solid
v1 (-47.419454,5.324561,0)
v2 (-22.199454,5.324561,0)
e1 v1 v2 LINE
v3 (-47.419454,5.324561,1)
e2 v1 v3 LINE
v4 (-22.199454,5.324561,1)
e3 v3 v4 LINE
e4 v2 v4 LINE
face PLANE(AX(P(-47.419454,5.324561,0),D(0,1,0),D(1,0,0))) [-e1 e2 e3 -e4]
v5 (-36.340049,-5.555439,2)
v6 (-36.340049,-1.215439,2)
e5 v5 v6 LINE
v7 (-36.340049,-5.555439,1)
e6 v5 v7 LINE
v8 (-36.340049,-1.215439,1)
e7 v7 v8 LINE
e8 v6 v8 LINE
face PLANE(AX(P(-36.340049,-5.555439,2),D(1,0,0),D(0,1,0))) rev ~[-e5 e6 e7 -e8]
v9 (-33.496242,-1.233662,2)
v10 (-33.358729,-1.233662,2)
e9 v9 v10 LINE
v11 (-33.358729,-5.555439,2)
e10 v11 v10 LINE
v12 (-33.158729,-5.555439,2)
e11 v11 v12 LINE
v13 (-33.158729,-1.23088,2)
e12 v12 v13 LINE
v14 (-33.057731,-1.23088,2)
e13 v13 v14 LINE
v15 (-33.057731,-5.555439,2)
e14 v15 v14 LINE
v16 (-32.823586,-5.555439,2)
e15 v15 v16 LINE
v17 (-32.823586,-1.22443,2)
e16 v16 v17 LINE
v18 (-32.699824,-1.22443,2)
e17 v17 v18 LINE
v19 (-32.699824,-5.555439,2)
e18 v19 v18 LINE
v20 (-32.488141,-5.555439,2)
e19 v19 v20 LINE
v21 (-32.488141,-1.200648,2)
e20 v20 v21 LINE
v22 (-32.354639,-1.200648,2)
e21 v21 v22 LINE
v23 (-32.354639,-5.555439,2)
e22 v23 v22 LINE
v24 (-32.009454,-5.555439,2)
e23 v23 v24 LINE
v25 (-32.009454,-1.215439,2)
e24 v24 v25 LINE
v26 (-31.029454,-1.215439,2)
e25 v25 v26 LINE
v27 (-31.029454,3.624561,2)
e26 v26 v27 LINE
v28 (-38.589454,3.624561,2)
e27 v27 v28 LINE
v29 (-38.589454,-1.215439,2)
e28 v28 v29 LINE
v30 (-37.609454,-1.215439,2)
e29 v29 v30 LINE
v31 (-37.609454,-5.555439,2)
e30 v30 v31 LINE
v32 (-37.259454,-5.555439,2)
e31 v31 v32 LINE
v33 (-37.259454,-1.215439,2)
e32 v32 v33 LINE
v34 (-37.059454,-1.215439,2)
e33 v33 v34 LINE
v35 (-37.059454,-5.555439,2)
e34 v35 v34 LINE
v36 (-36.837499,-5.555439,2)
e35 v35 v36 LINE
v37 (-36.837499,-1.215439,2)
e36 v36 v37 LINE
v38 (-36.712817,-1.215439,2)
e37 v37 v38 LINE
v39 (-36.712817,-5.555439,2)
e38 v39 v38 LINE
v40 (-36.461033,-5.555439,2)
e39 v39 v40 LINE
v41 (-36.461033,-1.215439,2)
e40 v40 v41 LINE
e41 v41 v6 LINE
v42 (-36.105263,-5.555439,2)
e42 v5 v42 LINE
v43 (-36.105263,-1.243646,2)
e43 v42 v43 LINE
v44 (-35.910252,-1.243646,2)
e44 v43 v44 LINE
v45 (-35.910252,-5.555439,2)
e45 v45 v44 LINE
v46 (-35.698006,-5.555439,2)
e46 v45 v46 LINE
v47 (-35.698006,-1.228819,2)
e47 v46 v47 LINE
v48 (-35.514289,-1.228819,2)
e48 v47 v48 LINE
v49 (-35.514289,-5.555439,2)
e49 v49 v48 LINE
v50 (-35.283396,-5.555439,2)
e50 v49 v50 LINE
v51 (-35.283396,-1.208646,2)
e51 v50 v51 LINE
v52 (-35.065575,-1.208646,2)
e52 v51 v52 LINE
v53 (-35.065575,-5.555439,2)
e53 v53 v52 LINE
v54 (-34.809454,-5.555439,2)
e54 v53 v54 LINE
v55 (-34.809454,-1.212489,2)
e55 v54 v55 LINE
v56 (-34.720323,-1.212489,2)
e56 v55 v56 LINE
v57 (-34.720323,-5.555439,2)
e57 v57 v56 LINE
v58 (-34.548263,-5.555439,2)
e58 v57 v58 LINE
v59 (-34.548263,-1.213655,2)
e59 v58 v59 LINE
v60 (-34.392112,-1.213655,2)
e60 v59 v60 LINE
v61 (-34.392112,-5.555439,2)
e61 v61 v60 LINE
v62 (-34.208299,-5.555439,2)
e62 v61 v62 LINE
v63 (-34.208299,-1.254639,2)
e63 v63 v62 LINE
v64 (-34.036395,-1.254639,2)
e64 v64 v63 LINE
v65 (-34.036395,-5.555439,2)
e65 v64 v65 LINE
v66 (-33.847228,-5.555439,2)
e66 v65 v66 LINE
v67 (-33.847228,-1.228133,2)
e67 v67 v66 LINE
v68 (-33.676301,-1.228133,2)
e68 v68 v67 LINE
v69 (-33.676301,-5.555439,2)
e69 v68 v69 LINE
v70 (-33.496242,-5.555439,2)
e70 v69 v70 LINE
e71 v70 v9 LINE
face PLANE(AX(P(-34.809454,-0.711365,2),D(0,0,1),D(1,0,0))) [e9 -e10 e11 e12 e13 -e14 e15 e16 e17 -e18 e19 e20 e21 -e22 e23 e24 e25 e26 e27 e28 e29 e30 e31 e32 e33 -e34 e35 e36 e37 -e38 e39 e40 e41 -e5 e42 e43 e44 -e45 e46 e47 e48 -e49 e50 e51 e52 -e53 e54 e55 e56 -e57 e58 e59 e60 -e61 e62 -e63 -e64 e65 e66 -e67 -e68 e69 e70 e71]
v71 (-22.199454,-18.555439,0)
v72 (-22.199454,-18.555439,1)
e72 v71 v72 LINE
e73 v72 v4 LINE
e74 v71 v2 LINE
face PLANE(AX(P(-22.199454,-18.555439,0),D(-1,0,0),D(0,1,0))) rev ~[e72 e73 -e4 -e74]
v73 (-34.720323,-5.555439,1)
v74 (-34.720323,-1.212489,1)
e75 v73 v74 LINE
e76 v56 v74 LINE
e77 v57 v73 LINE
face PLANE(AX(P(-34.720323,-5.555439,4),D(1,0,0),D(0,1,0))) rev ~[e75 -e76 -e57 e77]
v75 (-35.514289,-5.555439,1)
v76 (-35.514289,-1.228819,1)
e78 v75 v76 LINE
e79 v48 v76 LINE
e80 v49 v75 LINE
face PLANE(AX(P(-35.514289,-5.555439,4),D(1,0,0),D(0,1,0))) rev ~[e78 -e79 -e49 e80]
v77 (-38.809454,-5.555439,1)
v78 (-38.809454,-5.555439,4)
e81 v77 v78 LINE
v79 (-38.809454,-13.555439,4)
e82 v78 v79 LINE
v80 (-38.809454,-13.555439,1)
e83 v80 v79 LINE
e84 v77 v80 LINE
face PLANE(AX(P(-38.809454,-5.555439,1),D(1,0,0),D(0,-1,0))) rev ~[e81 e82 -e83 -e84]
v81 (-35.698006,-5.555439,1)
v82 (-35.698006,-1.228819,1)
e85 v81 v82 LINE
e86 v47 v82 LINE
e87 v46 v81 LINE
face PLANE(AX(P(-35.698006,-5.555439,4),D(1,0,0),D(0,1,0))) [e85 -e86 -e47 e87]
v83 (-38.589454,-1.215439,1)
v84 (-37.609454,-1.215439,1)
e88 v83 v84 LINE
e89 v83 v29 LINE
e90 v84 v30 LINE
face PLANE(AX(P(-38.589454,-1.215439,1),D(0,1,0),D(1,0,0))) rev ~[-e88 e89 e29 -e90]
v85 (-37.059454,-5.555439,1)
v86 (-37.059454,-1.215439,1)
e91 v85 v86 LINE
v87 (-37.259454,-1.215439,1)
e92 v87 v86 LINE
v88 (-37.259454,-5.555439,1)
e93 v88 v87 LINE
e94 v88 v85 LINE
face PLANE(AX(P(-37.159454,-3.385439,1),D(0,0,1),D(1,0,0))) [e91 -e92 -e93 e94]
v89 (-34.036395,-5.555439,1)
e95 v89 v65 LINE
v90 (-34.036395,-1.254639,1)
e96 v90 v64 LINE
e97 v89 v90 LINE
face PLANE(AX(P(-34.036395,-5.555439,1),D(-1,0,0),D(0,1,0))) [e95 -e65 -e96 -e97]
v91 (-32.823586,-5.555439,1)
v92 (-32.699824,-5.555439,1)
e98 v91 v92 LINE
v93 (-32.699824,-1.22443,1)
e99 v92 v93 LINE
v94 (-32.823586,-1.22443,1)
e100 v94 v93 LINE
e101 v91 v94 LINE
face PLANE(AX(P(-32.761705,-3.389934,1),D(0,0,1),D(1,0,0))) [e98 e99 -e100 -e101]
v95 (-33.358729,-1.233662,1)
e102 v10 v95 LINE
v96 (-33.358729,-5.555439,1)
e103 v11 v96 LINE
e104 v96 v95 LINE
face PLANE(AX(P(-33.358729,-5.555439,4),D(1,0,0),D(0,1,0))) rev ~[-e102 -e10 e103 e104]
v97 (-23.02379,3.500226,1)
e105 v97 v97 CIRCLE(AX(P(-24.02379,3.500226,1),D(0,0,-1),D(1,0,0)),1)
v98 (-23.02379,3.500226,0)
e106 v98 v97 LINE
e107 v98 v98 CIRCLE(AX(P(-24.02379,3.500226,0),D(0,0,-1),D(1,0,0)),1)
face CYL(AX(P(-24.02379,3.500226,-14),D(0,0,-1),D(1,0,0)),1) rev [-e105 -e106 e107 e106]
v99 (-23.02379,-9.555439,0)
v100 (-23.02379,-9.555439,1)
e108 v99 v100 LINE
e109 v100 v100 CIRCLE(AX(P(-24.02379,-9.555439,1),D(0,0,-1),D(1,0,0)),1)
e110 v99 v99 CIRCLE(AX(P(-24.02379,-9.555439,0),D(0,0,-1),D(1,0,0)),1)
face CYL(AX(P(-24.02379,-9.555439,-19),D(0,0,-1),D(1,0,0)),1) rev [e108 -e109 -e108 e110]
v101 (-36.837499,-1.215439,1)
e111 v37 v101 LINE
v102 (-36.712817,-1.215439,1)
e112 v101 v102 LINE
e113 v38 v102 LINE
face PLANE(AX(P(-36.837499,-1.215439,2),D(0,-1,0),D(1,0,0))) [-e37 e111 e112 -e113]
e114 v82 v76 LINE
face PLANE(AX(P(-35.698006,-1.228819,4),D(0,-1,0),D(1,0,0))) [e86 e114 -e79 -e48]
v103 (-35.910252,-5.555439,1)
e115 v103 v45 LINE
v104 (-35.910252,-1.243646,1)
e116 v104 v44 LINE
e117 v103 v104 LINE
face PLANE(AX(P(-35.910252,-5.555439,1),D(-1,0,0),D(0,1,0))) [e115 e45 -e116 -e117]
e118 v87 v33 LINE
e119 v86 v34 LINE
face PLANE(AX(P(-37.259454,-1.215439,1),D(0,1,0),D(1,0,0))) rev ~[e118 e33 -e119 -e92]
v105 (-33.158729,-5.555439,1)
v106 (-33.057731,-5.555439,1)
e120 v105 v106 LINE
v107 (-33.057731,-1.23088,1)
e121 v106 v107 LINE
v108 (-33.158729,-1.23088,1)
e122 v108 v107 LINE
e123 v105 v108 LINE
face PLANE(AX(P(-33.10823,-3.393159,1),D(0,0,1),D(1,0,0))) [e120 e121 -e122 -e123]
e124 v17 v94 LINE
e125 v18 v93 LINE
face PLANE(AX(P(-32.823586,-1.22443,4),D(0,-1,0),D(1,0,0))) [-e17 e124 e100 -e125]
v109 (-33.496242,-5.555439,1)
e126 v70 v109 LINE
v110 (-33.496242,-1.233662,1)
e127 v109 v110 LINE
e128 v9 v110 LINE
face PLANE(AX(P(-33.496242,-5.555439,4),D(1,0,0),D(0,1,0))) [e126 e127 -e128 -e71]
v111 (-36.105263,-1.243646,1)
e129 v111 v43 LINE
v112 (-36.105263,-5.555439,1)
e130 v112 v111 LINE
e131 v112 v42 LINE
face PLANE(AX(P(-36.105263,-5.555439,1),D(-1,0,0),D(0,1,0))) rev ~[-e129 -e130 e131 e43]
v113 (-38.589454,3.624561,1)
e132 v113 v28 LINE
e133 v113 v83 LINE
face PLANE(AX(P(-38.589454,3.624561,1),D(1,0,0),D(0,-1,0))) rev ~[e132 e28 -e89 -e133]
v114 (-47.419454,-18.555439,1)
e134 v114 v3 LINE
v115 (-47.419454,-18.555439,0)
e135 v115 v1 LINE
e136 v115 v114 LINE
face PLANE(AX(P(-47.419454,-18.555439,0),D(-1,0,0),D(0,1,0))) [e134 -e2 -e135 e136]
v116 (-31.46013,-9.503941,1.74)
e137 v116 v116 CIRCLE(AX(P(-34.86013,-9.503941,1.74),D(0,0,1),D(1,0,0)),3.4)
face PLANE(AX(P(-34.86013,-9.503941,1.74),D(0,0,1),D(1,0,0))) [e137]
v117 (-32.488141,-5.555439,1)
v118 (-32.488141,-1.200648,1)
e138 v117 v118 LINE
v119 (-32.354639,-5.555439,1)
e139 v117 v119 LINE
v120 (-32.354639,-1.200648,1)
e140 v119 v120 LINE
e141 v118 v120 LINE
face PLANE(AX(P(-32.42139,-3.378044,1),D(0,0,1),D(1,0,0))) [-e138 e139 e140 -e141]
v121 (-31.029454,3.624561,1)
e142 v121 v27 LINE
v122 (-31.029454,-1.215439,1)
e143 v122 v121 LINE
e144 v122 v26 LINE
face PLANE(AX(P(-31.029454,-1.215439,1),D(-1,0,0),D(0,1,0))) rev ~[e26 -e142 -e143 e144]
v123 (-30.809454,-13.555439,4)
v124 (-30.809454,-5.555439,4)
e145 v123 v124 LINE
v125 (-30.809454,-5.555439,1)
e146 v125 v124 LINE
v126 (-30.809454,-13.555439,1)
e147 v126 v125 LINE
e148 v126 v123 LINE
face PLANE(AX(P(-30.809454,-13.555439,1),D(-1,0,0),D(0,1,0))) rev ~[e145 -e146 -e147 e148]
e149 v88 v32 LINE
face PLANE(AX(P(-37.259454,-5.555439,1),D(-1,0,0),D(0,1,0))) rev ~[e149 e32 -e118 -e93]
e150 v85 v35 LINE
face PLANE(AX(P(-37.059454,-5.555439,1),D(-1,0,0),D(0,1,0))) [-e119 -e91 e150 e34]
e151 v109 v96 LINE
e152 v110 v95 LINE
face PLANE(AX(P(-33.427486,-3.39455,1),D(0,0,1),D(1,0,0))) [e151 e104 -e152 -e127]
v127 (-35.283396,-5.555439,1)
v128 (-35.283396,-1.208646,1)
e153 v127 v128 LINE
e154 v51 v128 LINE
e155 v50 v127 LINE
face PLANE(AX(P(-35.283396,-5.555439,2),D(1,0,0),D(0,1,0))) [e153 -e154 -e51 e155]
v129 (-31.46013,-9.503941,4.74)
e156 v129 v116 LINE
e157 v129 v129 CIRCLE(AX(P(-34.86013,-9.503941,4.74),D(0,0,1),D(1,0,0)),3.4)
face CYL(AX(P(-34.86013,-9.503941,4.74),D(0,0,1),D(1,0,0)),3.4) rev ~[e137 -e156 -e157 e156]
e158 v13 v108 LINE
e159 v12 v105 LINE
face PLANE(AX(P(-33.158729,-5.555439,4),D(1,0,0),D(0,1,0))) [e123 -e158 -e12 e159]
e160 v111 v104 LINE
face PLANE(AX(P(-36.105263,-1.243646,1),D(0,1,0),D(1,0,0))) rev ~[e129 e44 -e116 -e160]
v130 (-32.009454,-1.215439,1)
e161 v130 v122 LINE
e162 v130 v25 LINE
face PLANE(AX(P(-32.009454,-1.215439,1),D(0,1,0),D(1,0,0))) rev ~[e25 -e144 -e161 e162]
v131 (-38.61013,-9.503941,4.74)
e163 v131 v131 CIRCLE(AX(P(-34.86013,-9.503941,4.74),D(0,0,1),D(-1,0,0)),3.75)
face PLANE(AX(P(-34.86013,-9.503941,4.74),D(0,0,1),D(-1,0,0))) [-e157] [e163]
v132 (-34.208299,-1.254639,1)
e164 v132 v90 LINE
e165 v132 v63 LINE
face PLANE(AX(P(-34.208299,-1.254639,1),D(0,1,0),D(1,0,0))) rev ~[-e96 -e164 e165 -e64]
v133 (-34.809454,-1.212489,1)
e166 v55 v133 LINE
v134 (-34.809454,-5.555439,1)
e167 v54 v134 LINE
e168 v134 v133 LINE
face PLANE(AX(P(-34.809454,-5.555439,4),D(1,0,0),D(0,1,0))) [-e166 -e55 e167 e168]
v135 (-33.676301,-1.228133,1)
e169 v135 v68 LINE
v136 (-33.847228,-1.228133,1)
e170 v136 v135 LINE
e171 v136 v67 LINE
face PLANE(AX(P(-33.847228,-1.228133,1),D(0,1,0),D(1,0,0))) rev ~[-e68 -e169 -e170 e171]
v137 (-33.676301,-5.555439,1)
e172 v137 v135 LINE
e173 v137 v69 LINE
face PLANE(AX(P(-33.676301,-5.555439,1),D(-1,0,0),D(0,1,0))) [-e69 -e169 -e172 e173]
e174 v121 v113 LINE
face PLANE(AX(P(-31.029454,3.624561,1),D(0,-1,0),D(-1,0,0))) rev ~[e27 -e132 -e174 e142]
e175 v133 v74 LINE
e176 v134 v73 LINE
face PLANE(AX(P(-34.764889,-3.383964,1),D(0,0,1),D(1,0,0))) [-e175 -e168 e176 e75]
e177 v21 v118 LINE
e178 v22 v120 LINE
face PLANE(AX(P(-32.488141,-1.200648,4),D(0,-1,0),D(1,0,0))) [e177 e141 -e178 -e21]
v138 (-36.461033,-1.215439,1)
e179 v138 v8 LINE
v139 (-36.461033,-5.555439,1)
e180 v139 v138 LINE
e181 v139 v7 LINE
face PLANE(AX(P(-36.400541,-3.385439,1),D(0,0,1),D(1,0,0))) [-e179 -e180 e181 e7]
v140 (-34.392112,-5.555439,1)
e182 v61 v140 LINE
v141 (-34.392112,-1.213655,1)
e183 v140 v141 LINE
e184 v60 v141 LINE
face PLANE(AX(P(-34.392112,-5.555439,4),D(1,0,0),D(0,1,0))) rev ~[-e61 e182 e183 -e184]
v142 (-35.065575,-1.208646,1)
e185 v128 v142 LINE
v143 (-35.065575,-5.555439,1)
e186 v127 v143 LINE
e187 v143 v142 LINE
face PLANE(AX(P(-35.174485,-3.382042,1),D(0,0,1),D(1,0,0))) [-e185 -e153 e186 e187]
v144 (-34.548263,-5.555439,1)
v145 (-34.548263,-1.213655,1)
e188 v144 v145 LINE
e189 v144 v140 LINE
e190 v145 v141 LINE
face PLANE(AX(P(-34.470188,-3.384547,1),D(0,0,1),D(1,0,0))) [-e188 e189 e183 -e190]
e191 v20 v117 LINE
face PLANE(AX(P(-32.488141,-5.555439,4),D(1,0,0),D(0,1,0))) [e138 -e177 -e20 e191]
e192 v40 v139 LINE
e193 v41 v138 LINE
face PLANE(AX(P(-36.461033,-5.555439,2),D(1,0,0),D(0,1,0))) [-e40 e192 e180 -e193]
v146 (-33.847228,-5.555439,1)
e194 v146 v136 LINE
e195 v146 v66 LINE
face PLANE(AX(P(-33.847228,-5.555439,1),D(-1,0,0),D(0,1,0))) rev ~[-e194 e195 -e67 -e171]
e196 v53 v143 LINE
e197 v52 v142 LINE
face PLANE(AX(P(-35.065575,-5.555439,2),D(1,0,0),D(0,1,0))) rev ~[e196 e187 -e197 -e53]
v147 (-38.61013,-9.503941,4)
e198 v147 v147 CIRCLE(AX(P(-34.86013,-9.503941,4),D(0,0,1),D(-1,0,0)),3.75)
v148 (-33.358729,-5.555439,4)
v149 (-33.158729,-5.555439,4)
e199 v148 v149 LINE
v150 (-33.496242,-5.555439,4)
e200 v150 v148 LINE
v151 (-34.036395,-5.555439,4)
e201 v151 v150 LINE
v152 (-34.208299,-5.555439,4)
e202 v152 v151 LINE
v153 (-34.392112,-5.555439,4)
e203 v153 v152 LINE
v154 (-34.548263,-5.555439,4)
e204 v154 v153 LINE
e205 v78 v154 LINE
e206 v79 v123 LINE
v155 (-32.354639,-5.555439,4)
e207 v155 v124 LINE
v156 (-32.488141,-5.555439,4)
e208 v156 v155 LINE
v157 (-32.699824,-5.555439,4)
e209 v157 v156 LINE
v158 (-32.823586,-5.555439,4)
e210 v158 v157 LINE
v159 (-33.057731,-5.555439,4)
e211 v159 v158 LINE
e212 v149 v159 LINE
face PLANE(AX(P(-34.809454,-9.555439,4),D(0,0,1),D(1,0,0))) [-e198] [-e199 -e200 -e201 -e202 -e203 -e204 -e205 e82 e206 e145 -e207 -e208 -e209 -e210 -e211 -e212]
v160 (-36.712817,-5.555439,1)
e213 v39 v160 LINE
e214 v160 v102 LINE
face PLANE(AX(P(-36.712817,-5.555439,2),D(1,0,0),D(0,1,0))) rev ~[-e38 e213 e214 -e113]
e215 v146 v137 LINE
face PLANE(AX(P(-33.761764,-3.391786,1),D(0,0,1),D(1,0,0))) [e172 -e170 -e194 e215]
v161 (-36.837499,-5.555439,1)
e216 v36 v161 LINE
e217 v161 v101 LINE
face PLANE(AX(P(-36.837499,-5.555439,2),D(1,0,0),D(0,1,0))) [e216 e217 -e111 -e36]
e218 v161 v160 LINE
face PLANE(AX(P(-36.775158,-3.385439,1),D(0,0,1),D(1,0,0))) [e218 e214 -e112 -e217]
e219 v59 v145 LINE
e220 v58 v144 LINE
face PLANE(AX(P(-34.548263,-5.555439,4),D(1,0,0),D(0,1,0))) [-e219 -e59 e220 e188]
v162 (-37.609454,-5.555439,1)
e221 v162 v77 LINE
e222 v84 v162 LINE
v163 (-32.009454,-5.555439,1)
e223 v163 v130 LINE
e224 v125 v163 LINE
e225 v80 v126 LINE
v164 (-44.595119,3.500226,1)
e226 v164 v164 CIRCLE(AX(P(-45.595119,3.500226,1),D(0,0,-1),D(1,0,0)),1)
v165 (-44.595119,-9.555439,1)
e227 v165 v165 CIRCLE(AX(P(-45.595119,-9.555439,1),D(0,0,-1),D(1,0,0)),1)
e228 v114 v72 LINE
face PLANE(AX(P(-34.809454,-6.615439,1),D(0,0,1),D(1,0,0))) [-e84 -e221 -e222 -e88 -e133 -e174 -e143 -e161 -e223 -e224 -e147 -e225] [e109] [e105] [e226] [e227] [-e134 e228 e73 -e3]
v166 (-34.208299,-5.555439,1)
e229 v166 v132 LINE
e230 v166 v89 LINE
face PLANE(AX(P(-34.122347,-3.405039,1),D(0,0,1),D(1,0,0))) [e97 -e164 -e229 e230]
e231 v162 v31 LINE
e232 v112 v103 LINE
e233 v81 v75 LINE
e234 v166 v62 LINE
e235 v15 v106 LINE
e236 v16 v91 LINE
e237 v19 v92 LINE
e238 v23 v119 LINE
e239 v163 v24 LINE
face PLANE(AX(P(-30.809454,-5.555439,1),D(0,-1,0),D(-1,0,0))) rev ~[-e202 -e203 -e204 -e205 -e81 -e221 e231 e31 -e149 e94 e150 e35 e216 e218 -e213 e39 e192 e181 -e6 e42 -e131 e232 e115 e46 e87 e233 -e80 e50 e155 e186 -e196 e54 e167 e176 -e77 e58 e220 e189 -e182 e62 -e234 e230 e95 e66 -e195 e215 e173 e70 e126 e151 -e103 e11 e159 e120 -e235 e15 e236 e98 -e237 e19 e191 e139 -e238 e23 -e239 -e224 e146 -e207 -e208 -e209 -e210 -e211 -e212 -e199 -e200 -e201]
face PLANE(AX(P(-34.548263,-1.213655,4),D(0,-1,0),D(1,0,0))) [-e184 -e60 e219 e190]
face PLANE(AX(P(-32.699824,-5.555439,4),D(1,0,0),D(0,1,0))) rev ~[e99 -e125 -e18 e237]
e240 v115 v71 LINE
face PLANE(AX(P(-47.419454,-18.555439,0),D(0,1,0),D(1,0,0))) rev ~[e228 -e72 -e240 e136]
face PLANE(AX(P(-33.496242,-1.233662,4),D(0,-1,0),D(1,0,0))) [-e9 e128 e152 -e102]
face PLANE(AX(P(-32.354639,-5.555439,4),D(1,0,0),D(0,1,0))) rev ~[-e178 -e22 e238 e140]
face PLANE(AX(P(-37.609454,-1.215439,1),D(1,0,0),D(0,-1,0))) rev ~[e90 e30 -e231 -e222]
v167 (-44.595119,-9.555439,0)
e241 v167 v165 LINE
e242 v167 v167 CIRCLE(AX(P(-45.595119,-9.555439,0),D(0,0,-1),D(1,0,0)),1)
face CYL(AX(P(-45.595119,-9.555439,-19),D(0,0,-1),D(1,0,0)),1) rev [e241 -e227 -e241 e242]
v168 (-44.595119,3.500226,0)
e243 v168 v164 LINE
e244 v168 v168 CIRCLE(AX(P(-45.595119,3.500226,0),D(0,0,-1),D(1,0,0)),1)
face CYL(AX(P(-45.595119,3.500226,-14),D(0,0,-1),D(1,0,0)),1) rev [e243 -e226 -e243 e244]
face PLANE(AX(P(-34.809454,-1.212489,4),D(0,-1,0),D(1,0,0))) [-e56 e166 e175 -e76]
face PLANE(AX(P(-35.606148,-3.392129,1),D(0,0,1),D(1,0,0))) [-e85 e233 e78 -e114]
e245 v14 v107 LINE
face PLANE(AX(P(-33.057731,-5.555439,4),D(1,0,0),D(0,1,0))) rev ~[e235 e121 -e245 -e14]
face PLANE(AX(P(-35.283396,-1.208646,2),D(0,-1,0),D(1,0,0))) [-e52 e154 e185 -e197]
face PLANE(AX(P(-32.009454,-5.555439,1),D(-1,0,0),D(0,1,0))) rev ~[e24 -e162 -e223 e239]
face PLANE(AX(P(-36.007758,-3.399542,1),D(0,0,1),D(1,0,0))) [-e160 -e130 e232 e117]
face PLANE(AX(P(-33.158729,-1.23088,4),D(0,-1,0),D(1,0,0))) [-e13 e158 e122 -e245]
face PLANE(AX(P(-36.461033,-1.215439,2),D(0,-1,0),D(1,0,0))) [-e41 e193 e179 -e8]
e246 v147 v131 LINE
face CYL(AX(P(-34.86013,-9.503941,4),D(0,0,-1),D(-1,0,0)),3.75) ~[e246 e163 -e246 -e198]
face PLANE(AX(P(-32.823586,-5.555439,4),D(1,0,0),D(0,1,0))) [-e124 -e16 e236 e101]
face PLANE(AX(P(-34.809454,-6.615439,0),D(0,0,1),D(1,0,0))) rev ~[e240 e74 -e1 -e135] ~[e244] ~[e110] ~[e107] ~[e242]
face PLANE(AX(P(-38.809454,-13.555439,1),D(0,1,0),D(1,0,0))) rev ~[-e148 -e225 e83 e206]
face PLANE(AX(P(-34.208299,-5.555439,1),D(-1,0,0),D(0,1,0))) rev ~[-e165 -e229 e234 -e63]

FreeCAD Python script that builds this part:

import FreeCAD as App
import Part
import Sketcher

V = App.Vector


def add_polygon(sketch, points):
    """Adds a closed chain of lines whose ends are joined by coincident constraints."""
    first, n = sketch.GeometryCount, len(points)
    for a, b in zip(points, points[1:] + points[:1]):
        sketch.addGeometry(Part.LineSegment(App.Vector(*a, 0), App.Vector(*b, 0)), False)
    for i in range(n):
        sketch.addConstraint(Sketcher.Constraint("Coincident", first + i, 2, first + (i + 1) % n, 1))

doc = App.newDocument("Part")
body = doc.addObject("PartDesign::Body", "Body")

# Sketch on XY plane
sketch1 = doc.addObject("Sketcher::SketchObject", "Sketch")
body.addObject(sketch1)
sketch1.AttachmentSupport = (doc.XY_Plane, [""])
sketch1.MapMode = "FlatFace"
add_polygon(sketch1, [(-47, 5), (-47, -19), (-22, -19), (-22, 5)])  # lines 0-3
sketch1.addConstraint([
    Sketcher.Constraint("Vertical", 0),
    Sketcher.Constraint("Horizontal", 1),
    Sketcher.Constraint("Vertical", 2),
    Sketcher.Constraint("Horizontal", 3),
    Sketcher.Constraint("DistanceX", 1, 1, 1, 2, 25.22),
    Sketcher.Constraint("DistanceY", 0, 2, 0, 1, 23.88),
    Sketcher.Constraint("DistanceY", 0, 2, -1, 1, 18.555439),
    Sketcher.Constraint("DistanceX", 0, 2, -1, 1, 47.419454),
])
pad1 = doc.addObject("PartDesign::Pad", "Pad")
body.addObject(pad1)
pad1.Profile = sketch1
pad1.Length = 1

# Sketch on XY plane
sketch2 = doc.addObject("Sketcher::SketchObject", "Sketch001")
body.addObject(sketch2)
sketch2.AttachmentSupport = (doc.XY_Plane, [""])
sketch2.MapMode = "FlatFace"
sketch2.AttachmentOffset = App.Placement(V(0, 0, 1), App.Rotation())
sketch2.addGeometry([
    Part.Circle(V(-24, 3.5, 0), V(0, 0, 1), 1),
    Part.Circle(V(-45.6, 3.5, 0), V(0, 0, 1), 1),
], False)
sketch2.addConstraint([
    Sketcher.Constraint("Equal", 0, 1),
    Sketcher.Constraint("Horizontal", 0, 3, 1, 3),
    Sketcher.Constraint("Diameter", 0, 2.0),
    Sketcher.Constraint("DistanceX", 0, 3, -1, 1, 24.02379),
    Sketcher.Constraint("DistanceX", 1, 3, -1, 1, 45.595119),
    Sketcher.Constraint("DistanceY", -1, 1, 0, 3, 3.500226),
])
pocket1 = doc.addObject("PartDesign::Pocket", "Pocket")
body.addObject(pocket1)
pocket1.Profile = sketch2
pocket1.Type = "ThroughAll"
pocket1.Midplane = True

# Sketch on XY plane
sketch3 = doc.addObject("Sketcher::SketchObject", "Sketch002")
body.addObject(sketch3)
sketch3.AttachmentSupport = (doc.XY_Plane, [""])
sketch3.MapMode = "FlatFace"
sketch3.AttachmentOffset = App.Placement(V(0, 0, 1), App.Rotation())
add_polygon(sketch3, [(-31, -14), (-31, -6), (-39, -6), (-39, -14)])  # lines 0-3
sketch3.addConstraint([
    Sketcher.Constraint("Vertical", 0),
    Sketcher.Constraint("Horizontal", 1),
    Sketcher.Constraint("Vertical", 2),
    Sketcher.Constraint("Horizontal", 3),
    Sketcher.Constraint("Equal", 3, 0),
    Sketcher.Constraint("DistanceX", 1, 2, 1, 1, 8.0),
    Sketcher.Constraint("DistanceY", 0, 2, -1, 1, 5.555439),
    Sketcher.Constraint("DistanceX", 0, 2, -1, 1, 30.809454),
])
pad2 = doc.addObject("PartDesign::Pad", "Pad001")
body.addObject(pad2)
pad2.Profile = sketch3
pad2.Length = 3

# Sketch on XY plane
sketch4 = doc.addObject("Sketcher::SketchObject", "Sketch003")
body.addObject(sketch4)
sketch4.AttachmentSupport = (doc.XY_Plane, [""])
sketch4.MapMode = "FlatFace"
sketch4.AttachmentOffset = App.Placement(V(0, 0, 4), App.Rotation())
sketch4.addGeometry(Part.Circle(V(-34.9, -9.5, 0), V(0, 0, 1), 3.8), False)
sketch4.addConstraint([
    Sketcher.Constraint("Diameter", 0, 7.5),
    Sketcher.Constraint("DistanceX", 0, 3, -1, 1, 34.86013),
    Sketcher.Constraint("DistanceY", 0, 3, -1, 1, 9.503941),
])
pad3 = doc.addObject("PartDesign::Pad", "Pad002")
body.addObject(pad3)
pad3.Profile = sketch4
pad3.Length = 0.74

# Sketch on XY plane
sketch5 = doc.addObject("Sketcher::SketchObject", "Sketch004")
body.addObject(sketch5)
sketch5.AttachmentSupport = (doc.XY_Plane, [""])
sketch5.MapMode = "FlatFace"
sketch5.AttachmentOffset = App.Placement(V(0, 0, 4.74), App.Rotation())
sketch5.addGeometry(Part.Circle(V(-34.9, -9.5, 0), V(0, 0, 1), 3.4), False)
sketch5.addConstraint([
    Sketcher.Constraint("Diameter", 0, 6.8),
    Sketcher.Constraint("DistanceX", 0, 3, -1, 1, 34.86013),
    Sketcher.Constraint("DistanceY", 0, 3, -1, 1, 9.503941),
])
pocket2 = doc.addObject("PartDesign::Pocket", "Pocket001")
body.addObject(pocket2)
pocket2.Profile = sketch5
pocket2.Length = 3

# Sketch on XY plane
sketch6 = doc.addObject("Sketcher::SketchObject", "Sketch005")
body.addObject(sketch6)
sketch6.AttachmentSupport = (doc.XY_Plane, [""])
sketch6.MapMode = "FlatFace"
sketch6.AttachmentOffset = App.Placement(V(0, 0, 1), App.Rotation())
sketch6.addGeometry([
    Part.Circle(V(-24, -9.6, 0), V(0, 0, 1), 1),
    Part.Circle(V(-45.6, -9.6, 0), V(0, 0, 1), 1),
], False)
sketch6.addConstraint([
    Sketcher.Constraint("Equal", 0, 1),
    Sketcher.Constraint("Horizontal", 0, 3, 1, 3),
    Sketcher.Constraint("Diameter", 0, 2.0),
    Sketcher.Constraint("DistanceX", 0, 3, -1, 1, 24.02379),
    Sketcher.Constraint("DistanceY", 0, 3, -1, 1, 9.555439),
    Sketcher.Constraint("DistanceX", 1, 3, -1, 1, 45.595119),
])
pocket3 = doc.addObject("PartDesign::Pocket", "Pocket002")
body.addObject(pocket3)
pocket3.Profile = sketch6
pocket3.Type = "ThroughAll"
pocket3.Midplane = True

# Sketch on XY plane
sketch7 = doc.addObject("Sketcher::SketchObject", "Sketch006")
body.addObject(sketch7)
sketch7.AttachmentSupport = (doc.XY_Plane, [""])
sketch7.MapMode = "FlatFace"
sketch7.AttachmentOffset = App.Placement(V(0, 0, 1), App.Rotation())
add_polygon(sketch7, [(-38.6, 3.6), (-38.6, -1.2), (-37.6, -1.2), (-37.6, -5.6), (-32, -5.6), (-32, -1.2), (-31, -1.2), (-31, 3.6)])  # lines 0-7
sketch7.addConstraint([
    Sketcher.Constraint("Vertical", 0),
    Sketcher.Constraint("Horizontal", 1),
    Sketcher.Constraint("Vertical", 2),
    Sketcher.Constraint("Horizontal", 3),
    Sketcher.Constraint("Vertical", 4),
    Sketcher.Constraint("Horizontal", 5),
    Sketcher.Constraint("Vertical", 6),
    Sketcher.Constraint("Horizontal", 7),
    Sketcher.Constraint("Horizontal", 1, 2, 4, 2),
    Sketcher.Constraint("Equal", 1, 5),
    Sketcher.Constraint("DistanceX", 3, 1, 3, 2, 5.6),
    Sketcher.Constraint("DistanceX", 1, 1, 1, 2, 0.98),
    Sketcher.Constraint("DistanceY", 0, 2, 0, 1, 4.84),
    Sketcher.Constraint("DistanceY", 2, 2, 2, 1, 4.34),
    Sketcher.Constraint("DistanceY", 0, 2, -1, 1, 1.215439),
    Sketcher.Constraint("DistanceX", 0, 2, -1, 1, 38.589454),
])
pad4 = doc.addObject("PartDesign::Pad", "Pad003")
body.addObject(pad4)
pad4.Profile = sketch7
pad4.Length = 1

# Sketch on XY plane
sketch8 = doc.addObject("Sketcher::SketchObject", "Sketch007")
body.addObject(sketch8)
sketch8.AttachmentSupport = (doc.XY_Plane, [""])
sketch8.MapMode = "FlatFace"
sketch8.AttachmentOffset = App.Placement(V(0, 0, 1), App.Rotation())
add_polygon(sketch8, [(-37.26, -1.22), (-37.26, -5.56), (-37.06, -5.56), (-37.06, -1.22)])  # lines 0-3
sketch8.addConstraint([
    Sketcher.Constraint("Vertical", 0),
    Sketcher.Constraint("Horizontal", 1),
    Sketcher.Constraint("Vertical", 2),
    Sketcher.Constraint("Horizontal", 3),
    Sketcher.Constraint("DistanceX", 1, 1, 1, 2, 0.2),
    Sketcher.Constraint("DistanceY", 0, 2, 0, 1, 4.34),
    Sketcher.Constraint("DistanceY", 0, 2, -1, 1, 5.555439),
    Sketcher.Constraint("DistanceX", 0, 2, -1, 1, 37.259454),
])
pocket4 = doc.addObject("PartDesign::Pocket", "Pocket003")
body.addObject(pocket4)
pocket4.Profile = sketch8
pocket4.Length = 1
pocket4.Reversed = True

# Sketch on XY plane
sketch9 = doc.addObject("Sketcher::SketchObject", "Sketch008")
body.addObject(sketch9)
sketch9.AttachmentSupport = (doc.XY_Plane, [""])
sketch9.MapMode = "FlatFace"
sketch9.AttachmentOffset = App.Placement(V(0, 0, 2), App.Rotation())
add_polygon(sketch9, [(-36.84, -1.22), (-36.84, -5.56), (-36.71, -5.56), (-36.71, -1.22)])  # lines 0-3
sketch9.addConstraint([
    Sketcher.Constraint("Vertical", 0),
    Sketcher.Constraint("Horizontal", 1),
    Sketcher.Constraint("Vertical", 2),
    Sketcher.Constraint("Horizontal", 3),
    Sketcher.Constraint("DistanceY", 0, 2, 0, 1, 4.34),
    Sketcher.Constraint("DistanceX", 1, 1, 1, 2, 0.124682),
    Sketcher.Constraint("DistanceX", 0, 2, -1, 1, 36.837499),
    Sketcher.Constraint("DistanceY", 0, 2, -1, 1, 5.555439),
])
pocket5 = doc.addObject("PartDesign::Pocket", "Pocket004")
body.addObject(pocket5)
pocket5.Profile = sketch9
pocket5.Length = 1

# Sketch on XY plane
sketch10 = doc.addObject("Sketcher::SketchObject", "Sketch009")
body.addObject(sketch10)
sketch10.AttachmentSupport = (doc.XY_Plane, [""])
sketch10.MapMode = "FlatFace"
sketch10.AttachmentOffset = App.Placement(V(0, 0, 2), App.Rotation())
add_polygon(sketch10, [(-36.46, -1.22), (-36.46, -5.56), (-36.34, -5.56), (-36.34, -1.22)])  # lines 0-3
sketch10.addConstraint([
    Sketcher.Constraint("Vertical", 0),
    Sketcher.Constraint("Horizontal", 1),
    Sketcher.Constraint("Vertical", 2),
    Sketcher.Constraint("Horizontal", 3),
    Sketcher.Constraint("DistanceY", 0, 2, 0, 1, 4.34),
    Sketcher.Constraint("DistanceX", 1, 1, 1, 2, 0.120984),
    Sketcher.Constraint("DistanceY", 0, 2, -1, 1, 5.555439),
    Sketcher.Constraint("DistanceX", 1, 2, -1, 1, 36.340049),
])
pocket6 = doc.addObject("PartDesign::Pocket", "Pocket005")
body.addObject(pocket6)
pocket6.Profile = sketch10
pocket6.Length = 1

# Sketch on XY plane
sketch11 = doc.addObject("Sketcher::SketchObject", "Sketch010")
body.addObject(sketch11)
sketch11.AttachmentSupport = (doc.XY_Plane, [""])
sketch11.MapMode = "FlatFace"
sketch11.AttachmentOffset = App.Placement(V(0, 0, 1), App.Rotation())
add_polygon(sketch11, [(-36.11, -1.24), (-36.11, -5.56), (-35.91, -5.56), (-35.91, -1.24)])  # lines 0-3
sketch11.addConstraint([
    Sketcher.Constraint("Vertical", 0),
    Sketcher.Constraint("Horizontal", 1),
    Sketcher.Constraint("Vertical", 2),
    Sketcher.Constraint("Horizontal", 3),
    Sketcher.Constraint("DistanceX", 1, 1, 1, 2, 0.195011),
    Sketcher.Constraint("DistanceY", 0, 2, 0, 1, 4.311793),
    Sketcher.Constraint("DistanceY", 0, 2, -1, 1, 5.555439),
    Sketcher.Constraint("DistanceX", 0, 2, -1, 1, 36.105263),
])
pocket7 = doc.addObject("PartDesign::Pocket", "Pocket006")
body.addObject(pocket7)
pocket7.Profile = sketch11
pocket7.Length = 1
pocket7.Reversed = True

# Sketch on XY plane
sketch12 = doc.addObject("Sketcher::SketchObject", "Sketch011")
body.addObject(sketch12)
sketch12.AttachmentSupport = (doc.XY_Plane, [""])
sketch12.MapMode = "FlatFace"
sketch12.AttachmentOffset = App.Placement(V(0, 0, 4), App.Rotation())
add_polygon(sketch12, [(-35.7, -1.23), (-35.7, -5.56), (-35.51, -5.56), (-35.51, -1.23)])  # lines 0-3
sketch12.addConstraint([
    Sketcher.Constraint("Vertical", 0),
    Sketcher.Constraint("Horizontal", 1),
    Sketcher.Constraint("Vertical", 2),
    Sketcher.Constraint("Horizontal", 3),
    Sketcher.Constraint("DistanceY", 0, 2, 0, 1, 4.32662),
    Sketcher.Constraint("DistanceX", 1, 1, 1, 2, 0.183718),
    Sketcher.Constraint("DistanceY", 0, 2, -1, 1, 5.555439),
    Sketcher.Constraint("DistanceX", 1, 2, -1, 1, 35.514289),
])
pocket8 = doc.addObject("PartDesign::Pocket", "Pocket007")
body.addObject(pocket8)
pocket8.Profile = sketch12
pocket8.Length = 3

# Sketch on XY plane
sketch13 = doc.addObject("Sketcher::SketchObject", "Sketch012")
body.addObject(sketch13)
sketch13.AttachmentSupport = (doc.XY_Plane, [""])
sketch13.MapMode = "FlatFace"
sketch13.AttachmentOffset = App.Placement(V(0, 0, 2), App.Rotation())
add_polygon(sketch13, [(-35.28, -1.21), (-35.28, -5.56), (-35.07, -5.56), (-35.07, -1.21)])  # lines 0-3
sketch13.addConstraint([
    Sketcher.Constraint("Vertical", 0),
    Sketcher.Constraint("Horizontal", 1),
    Sketcher.Constraint("Vertical", 2),
    Sketcher.Constraint("Horizontal", 3),
    Sketcher.Constraint("DistanceX", 1, 1, 1, 2, 0.217821),
    Sketcher.Constraint("DistanceY", 0, 2, 0, 1, 4.346793),
    Sketcher.Constraint("DistanceY", 0, 2, -1, 1, 5.555439),
    Sketcher.Constraint("DistanceX", 0, 2, -1, 1, 35.283396),
])
pocket9 = doc.addObject("PartDesign::Pocket", "Pocket008")
body.addObject(pocket9)
pocket9.Profile = sketch13
pocket9.Length = 1

# Sketch on XY plane
sketch14 = doc.addObject("Sketcher::SketchObject", "Sketch013")
body.addObject(sketch14)
sketch14.AttachmentSupport = (doc.XY_Plane, [""])
sketch14.MapMode = "FlatFace"
sketch14.AttachmentOffset = App.Placement(V(0, 0, 4), App.Rotation())
add_polygon(sketch14, [(-34.81, -1.21), (-34.81, -5.56), (-34.72, -5.56), (-34.72, -1.21)])  # lines 0-3
sketch14.addConstraint([
    Sketcher.Constraint("Vertical", 0),
    Sketcher.Constraint("Horizontal", 1),
    Sketcher.Constraint("Vertical", 2),
    Sketcher.Constraint("Horizontal", 3),
    Sketcher.Constraint("DistanceX", 1, 1, 1, 2, 0.089132),
    Sketcher.Constraint("DistanceY", 0, 2, 0, 1, 4.34295),
    Sketcher.Constraint("DistanceY", 0, 2, -1, 1, 5.555439),
    Sketcher.Constraint("DistanceX", 0, 2, -1, 1, 34.809454),
])
pocket10 = doc.addObject("PartDesign::Pocket", "Pocket009")
body.addObject(pocket10)
pocket10.Profile = sketch14
pocket10.Length = 3

# Sketch on XY plane
sketch15 = doc.addObject("Sketcher::SketchObject", "Sketch014")
body.addObject(sketch15)
sketch15.AttachmentSupport = (doc.XY_Plane, [""])
sketch15.MapMode = "FlatFace"
sketch15.AttachmentOffset = App.Placement(V(0, 0, 4), App.Rotation())
add_polygon(sketch15, [(-34.55, -1.21), (-34.55, -5.56), (-34.39, -5.56), (-34.39, -1.21)])  # lines 0-3
sketch15.addConstraint([
    Sketcher.Constraint("Vertical", 0),
    Sketcher.Constraint("Horizontal", 1),
    Sketcher.Constraint("Vertical", 2),
    Sketcher.Constraint("Horizontal", 3),
    Sketcher.Constraint("DistanceX", 1, 1, 1, 2, 0.156151),
    Sketcher.Constraint("DistanceY", 0, 2, 0, 1, 4.341784),
    Sketcher.Constraint("DistanceY", 0, 2, -1, 1, 5.555439),
    Sketcher.Constraint("DistanceX", 1, 2, -1, 1, 34.392112),
])
pocket11 = doc.addObject("PartDesign::Pocket", "Pocket010")
body.addObject(pocket11)
pocket11.Profile = sketch15
pocket11.Length = 3

# Sketch on XY plane
sketch16 = doc.addObject("Sketcher::SketchObject", "Sketch015")
body.addObject(sketch16)
sketch16.AttachmentSupport = (doc.XY_Plane, [""])
sketch16.MapMode = "FlatFace"
sketch16.AttachmentOffset = App.Placement(V(0, 0, 1), App.Rotation())
add_polygon(sketch16, [(-34.21, -1.25), (-34.21, -5.56), (-34.04, -5.56), (-34.04, -1.25)])  # lines 0-3
sketch16.addConstraint([
    Sketcher.Constraint("Vertical", 0),
    Sketcher.Constraint("Horizontal", 1),
    Sketcher.Constraint("Vertical", 2),
    Sketcher.Constraint("Horizontal", 3),
    Sketcher.Constraint("DistanceY", 0, 2, 0, 1, 4.3008),
    Sketcher.Constraint("DistanceX", 0, 2, -1, 1, 34.208299),
    Sketcher.Constraint("DistanceX", 1, 1, 1, 2, 0.171903),
    Sketcher.Constraint("DistanceY", 0, 2, -1, 1, 5.555439),
])
pocket12 = doc.addObject("PartDesign::Pocket", "Pocket011")
body.addObject(pocket12)
pocket12.Profile = sketch16
pocket12.Length = 3
pocket12.Reversed = True

# Sketch on XY plane
sketch17 = doc.addObject("Sketcher::SketchObject", "Sketch016")
body.addObject(sketch17)
sketch17.AttachmentSupport = (doc.XY_Plane, [""])
sketch17.MapMode = "FlatFace"
sketch17.AttachmentOffset = App.Placement(V(0, 0, 1), App.Rotation())
add_polygon(sketch17, [(-33.85, -1.23), (-33.85, -5.56), (-33.68, -5.56), (-33.68, -1.23)])  # lines 0-3
sketch17.addConstraint([
    Sketcher.Constraint("Vertical", 0),
    Sketcher.Constraint("Horizontal", 1),
    Sketcher.Constraint("Vertical", 2),
    Sketcher.Constraint("Horizontal", 3),
    Sketcher.Constraint("DistanceX", 1, 2, -1, 1, 33.676301),
    Sketcher.Constraint("DistanceX", 1, 1, 1, 2, 0.170926),
    Sketcher.Constraint("DistanceY", 0, 2, 0, 1, 4.327306),
    Sketcher.Constraint("DistanceY", 0, 2, -1, 1, 5.555439),
])
pocket13 = doc.addObject("PartDesign::Pocket", "Pocket012")
body.addObject(pocket13)
pocket13.Profile = sketch17
pocket13.Length = 3
pocket13.Reversed = True

# Sketch on XY plane
sketch18 = doc.addObject("Sketcher::SketchObject", "Sketch017")
body.addObject(sketch18)
sketch18.AttachmentSupport = (doc.XY_Plane, [""])
sketch18.MapMode = "FlatFace"
sketch18.AttachmentOffset = App.Placement(V(0, 0, 4), App.Rotation())
add_polygon(sketch18, [(-33.5, -1.23), (-33.5, -5.56), (-33.36, -5.56), (-33.36, -1.23)])  # lines 0-3
sketch18.addConstraint([
    Sketcher.Constraint("Vertical", 0),
    Sketcher.Constraint("Horizontal", 1),
    Sketcher.Constraint("Vertical", 2),
    Sketcher.Constraint("Horizontal", 3),
    Sketcher.Constraint("DistanceX", 1, 1, 1, 2, 0.137513),
    Sketcher.Constraint("DistanceY", 0, 2, 0, 1, 4.321777),
    Sketcher.Constraint("DistanceY", 0, 2, -1, 1, 5.555439),
    Sketcher.Constraint("DistanceX", 1, 2, -1, 1, 33.358729),
])
pocket14 = doc.addObject("PartDesign::Pocket", "Pocket013")
body.addObject(pocket14)
pocket14.Profile = sketch18
pocket14.Length = 3

# Sketch on XY plane
sketch19 = doc.addObject("Sketcher::SketchObject", "Sketch018")
body.addObject(sketch19)
sketch19.AttachmentSupport = (doc.XY_Plane, [""])
sketch19.MapMode = "FlatFace"
sketch19.AttachmentOffset = App.Placement(V(0, 0, 4), App.Rotation())
add_polygon(sketch19, [(-33.16, -1.23), (-33.16, -5.56), (-33.06, -5.56), (-33.06, -1.23)])  # lines 0-3
sketch19.addConstraint([
    Sketcher.Constraint("Vertical", 0),
    Sketcher.Constraint("Horizontal", 1),
    Sketcher.Constraint("Vertical", 2),
    Sketcher.Constraint("Horizontal", 3),
    Sketcher.Constraint("DistanceX", 1, 1, 1, 2, 0.100998),
    Sketcher.Constraint("DistanceY", 0, 2, 0, 1, 4.324559),
    Sketcher.Constraint("DistanceX", 0, 2, -1, 1, 33.158729),
    Sketcher.Constraint("DistanceY", 0, 2, -1, 1, 5.555439),
])
pocket15 = doc.addObject("PartDesign::Pocket", "Pocket014")
body.addObject(pocket15)
pocket15.Profile = sketch19
pocket15.Length = 3

# Sketch on XY plane
sketch20 = doc.addObject("Sketcher::SketchObject", "Sketch019")
body.addObject(sketch20)
sketch20.AttachmentSupport = (doc.XY_Plane, [""])
sketch20.MapMode = "FlatFace"
sketch20.AttachmentOffset = App.Placement(V(0, 0, 4), App.Rotation())
add_polygon(sketch20, [(-32.82, -1.22), (-32.82, -5.56), (-32.7, -5.56), (-32.7, -1.22)])  # lines 0-3
sketch20.addConstraint([
    Sketcher.Constraint("Vertical", 0),
    Sketcher.Constraint("Horizontal", 1),
    Sketcher.Constraint("Vertical", 2),
    Sketcher.Constraint("Horizontal", 3),
    Sketcher.Constraint("DistanceX", 1, 1, 1, 2, 0.123762),
    Sketcher.Constraint("DistanceY", 0, 2, 0, 1, 4.331008),
    Sketcher.Constraint("DistanceY", 0, 2, -1, 1, 5.555439),
    Sketcher.Constraint("DistanceX", 0, 2, -1, 1, 32.823586),
])
pocket16 = doc.addObject("PartDesign::Pocket", "Pocket015")
body.addObject(pocket16)
pocket16.Profile = sketch20
pocket16.Length = 3

# Sketch on XY plane
sketch21 = doc.addObject("Sketcher::SketchObject", "Sketch020")
body.addObject(sketch21)
sketch21.AttachmentSupport = (doc.XY_Plane, [""])
sketch21.MapMode = "FlatFace"
sketch21.AttachmentOffset = App.Placement(V(0, 0, 4), App.Rotation())
add_polygon(sketch21, [(-32.49, -1.2), (-32.49, -5.56), (-32.35, -5.56), (-32.35, -1.2)])  # lines 0-3
sketch21.addConstraint([
    Sketcher.Constraint("Vertical", 0),
    Sketcher.Constraint("Horizontal", 1),
    Sketcher.Constraint("Vertical", 2),
    Sketcher.Constraint("Horizontal", 3),
    Sketcher.Constraint("DistanceX", 1, 1, 1, 2, 0.133502),
    Sketcher.Constraint("DistanceY", 0, 2, 0, 1, 4.35479),
    Sketcher.Constraint("DistanceX", 0, 2, -1, 1, 32.488141),
    Sketcher.Constraint("DistanceY", 0, 2, -1, 1, 5.555439),
])
pocket17 = doc.addObject("PartDesign::Pocket", "Pocket016")
body.addObject(pocket17)
pocket17.Profile = sketch21
pocket17.Length = 3

doc.recompute()
